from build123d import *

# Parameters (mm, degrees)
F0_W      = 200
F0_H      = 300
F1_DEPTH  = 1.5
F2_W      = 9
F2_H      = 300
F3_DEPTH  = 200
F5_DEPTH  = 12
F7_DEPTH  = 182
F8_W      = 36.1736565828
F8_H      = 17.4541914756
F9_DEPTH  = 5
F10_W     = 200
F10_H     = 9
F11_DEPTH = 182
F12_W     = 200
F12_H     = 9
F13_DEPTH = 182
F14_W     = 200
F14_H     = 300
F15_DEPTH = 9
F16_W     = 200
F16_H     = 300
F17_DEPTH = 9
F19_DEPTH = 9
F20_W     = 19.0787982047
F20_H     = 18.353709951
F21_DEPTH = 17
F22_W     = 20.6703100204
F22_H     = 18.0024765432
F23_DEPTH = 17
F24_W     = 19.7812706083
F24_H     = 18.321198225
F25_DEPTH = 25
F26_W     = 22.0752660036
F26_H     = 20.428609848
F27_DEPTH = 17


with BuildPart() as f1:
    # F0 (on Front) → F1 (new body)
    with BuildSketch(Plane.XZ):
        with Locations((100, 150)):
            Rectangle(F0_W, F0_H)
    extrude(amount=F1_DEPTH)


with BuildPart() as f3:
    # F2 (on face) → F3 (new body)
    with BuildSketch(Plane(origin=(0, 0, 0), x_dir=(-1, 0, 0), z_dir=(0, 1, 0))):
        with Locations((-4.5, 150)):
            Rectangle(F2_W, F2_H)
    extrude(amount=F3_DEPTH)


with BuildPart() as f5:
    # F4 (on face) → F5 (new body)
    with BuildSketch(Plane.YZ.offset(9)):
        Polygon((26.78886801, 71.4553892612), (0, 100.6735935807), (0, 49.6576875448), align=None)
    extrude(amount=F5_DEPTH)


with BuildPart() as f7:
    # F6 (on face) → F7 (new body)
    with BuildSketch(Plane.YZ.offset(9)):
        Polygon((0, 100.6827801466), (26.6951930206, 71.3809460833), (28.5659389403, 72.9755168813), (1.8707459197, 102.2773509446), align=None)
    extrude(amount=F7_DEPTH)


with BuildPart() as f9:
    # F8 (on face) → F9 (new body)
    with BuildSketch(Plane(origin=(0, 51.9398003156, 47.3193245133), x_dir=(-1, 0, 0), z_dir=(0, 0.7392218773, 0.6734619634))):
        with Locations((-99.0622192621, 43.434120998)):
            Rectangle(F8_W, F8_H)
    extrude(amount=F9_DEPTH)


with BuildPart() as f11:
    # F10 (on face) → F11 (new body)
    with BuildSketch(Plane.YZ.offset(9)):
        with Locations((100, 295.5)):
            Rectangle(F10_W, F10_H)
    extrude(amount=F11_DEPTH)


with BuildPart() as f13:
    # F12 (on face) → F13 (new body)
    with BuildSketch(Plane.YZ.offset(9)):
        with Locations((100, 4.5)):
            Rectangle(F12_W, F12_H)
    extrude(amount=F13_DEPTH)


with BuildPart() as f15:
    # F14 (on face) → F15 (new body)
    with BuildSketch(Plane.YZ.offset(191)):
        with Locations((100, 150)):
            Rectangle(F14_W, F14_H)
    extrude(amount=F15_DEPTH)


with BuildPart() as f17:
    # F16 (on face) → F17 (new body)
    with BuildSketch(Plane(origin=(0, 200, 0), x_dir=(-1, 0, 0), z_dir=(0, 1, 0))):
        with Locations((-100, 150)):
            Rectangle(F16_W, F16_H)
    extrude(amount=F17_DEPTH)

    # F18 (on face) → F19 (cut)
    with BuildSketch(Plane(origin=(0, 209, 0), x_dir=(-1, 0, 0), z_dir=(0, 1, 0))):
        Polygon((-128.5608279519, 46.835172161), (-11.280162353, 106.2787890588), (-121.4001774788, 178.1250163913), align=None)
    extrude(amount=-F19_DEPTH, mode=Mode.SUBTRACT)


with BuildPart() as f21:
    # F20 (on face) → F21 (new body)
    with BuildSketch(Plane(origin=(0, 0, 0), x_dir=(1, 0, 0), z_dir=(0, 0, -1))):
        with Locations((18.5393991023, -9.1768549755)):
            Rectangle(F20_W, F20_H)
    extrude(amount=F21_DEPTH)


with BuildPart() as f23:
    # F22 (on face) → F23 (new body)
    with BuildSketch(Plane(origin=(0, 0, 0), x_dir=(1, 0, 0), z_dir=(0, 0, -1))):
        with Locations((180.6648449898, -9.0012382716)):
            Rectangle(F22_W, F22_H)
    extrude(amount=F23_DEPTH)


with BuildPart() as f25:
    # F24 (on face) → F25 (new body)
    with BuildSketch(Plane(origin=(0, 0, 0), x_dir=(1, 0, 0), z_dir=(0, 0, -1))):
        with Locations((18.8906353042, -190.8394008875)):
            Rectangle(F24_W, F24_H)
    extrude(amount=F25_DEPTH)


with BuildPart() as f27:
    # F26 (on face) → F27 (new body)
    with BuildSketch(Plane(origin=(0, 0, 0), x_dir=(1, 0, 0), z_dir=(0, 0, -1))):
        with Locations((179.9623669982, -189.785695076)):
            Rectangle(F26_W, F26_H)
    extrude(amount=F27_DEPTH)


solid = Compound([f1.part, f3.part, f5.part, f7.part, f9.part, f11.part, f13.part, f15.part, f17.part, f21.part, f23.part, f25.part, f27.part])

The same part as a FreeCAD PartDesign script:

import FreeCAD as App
import Part
import Sketcher
from FreeCAD import Vector
Q = App.Units.Quantity

doc = App.newDocument("Part")
body = doc.addObject("PartDesign::Body", "Body")

sketch1 = body.newObject("Sketcher::SketchObject", "Sketch")
sketch1.AttachmentSupport = (doc.getObject("XZ_Plane"), [""])
sketch1.MapMode = "FlatFace"
sketch1.addGeometry(Part.LineSegment(Vector(0, 300, 0), Vector(0, 0, 0)), False)
sketch1.addGeometry(Part.LineSegment(Vector(0, 0, 0), Vector(200, 0, 0)), False)
sketch1.addGeometry(Part.LineSegment(Vector(200, 0, 0), Vector(200, 300, 0)), False)
sketch1.addGeometry(Part.LineSegment(Vector(200, 300, 0), Vector(0, 300, 0)), False)
sketch1.addConstraint(Sketcher.Constraint("Coincident", 0, 2, 1, 1))
sketch1.addConstraint(Sketcher.Constraint("Coincident", 1, 2, 2, 1))
sketch1.addConstraint(Sketcher.Constraint("Coincident", 2, 2, 3, 1))
sketch1.addConstraint(Sketcher.Constraint("Coincident", 3, 2, 0, 1))
sketch1.addConstraint(Sketcher.Constraint("Vertical", 0))
sketch1.addConstraint(Sketcher.Constraint("Horizontal", 1))
sketch1.addConstraint(Sketcher.Constraint("Vertical", 2))
sketch1.addConstraint(Sketcher.Constraint("Horizontal", 3))
sketch1.addConstraint(Sketcher.Constraint("Coincident", 0, 2, -1, 1))
sketch1.addConstraint(Sketcher.Constraint("DistanceX", 1, 1, 1, 2, Q("200 mm")))
sketch1.addConstraint(Sketcher.Constraint("DistanceY", 0, 2, 0, 1, Q("300 mm")))
pad1 = body.newObject("PartDesign::Pad", "Pad")
pad1.Profile = sketch1
pad1.Length = 1.5
body2 = doc.addObject("PartDesign::Body", "Body001")

sketch2 = body2.newObject("Sketcher::SketchObject", "Sketch001")
sketch2.AttachmentSupport = (doc.getObject("XZ_Plane001"), [""])
sketch2.MapMode = "FlatFace"
sketch2.addGeometry(Part.LineSegment(Vector(9, 300, 0), Vector(9, 0, 0)), False)
sketch2.addGeometry(Part.LineSegment(Vector(9, 0, 0), Vector(0, 0, 0)), False)
sketch2.addGeometry(Part.LineSegment(Vector(0, 0, 0), Vector(0, 300, 0)), False)
sketch2.addGeometry(Part.LineSegment(Vector(0, 300, 0), Vector(9, 300, 0)), False)
sketch2.addConstraint(Sketcher.Constraint("Coincident", 0, 2, 1, 1))
sketch2.addConstraint(Sketcher.Constraint("Coincident", 1, 2, 2, 1))
sketch2.addConstraint(Sketcher.Constraint("Coincident", 2, 2, 3, 1))
sketch2.addConstraint(Sketcher.Constraint("Coincident", 3, 2, 0, 1))
sketch2.addConstraint(Sketcher.Constraint("Vertical", 0))
sketch2.addConstraint(Sketcher.Constraint("Horizontal", 1))
sketch2.addConstraint(Sketcher.Constraint("Vertical", 2))
sketch2.addConstraint(Sketcher.Constraint("Horizontal", 3))
sketch2.addConstraint(Sketcher.Constraint("Coincident", 1, 2, -1, 1))
sketch2.addConstraint(Sketcher.Constraint("DistanceX", 1, 2, 1, 1, Q("9 mm")))
sketch2.addConstraint(Sketcher.Constraint("DistanceY", 0, 2, 0, 1, Q("300 mm")))
pad2 = body2.newObject("PartDesign::Pad", "Pad001")
pad2.Profile = sketch2
pad2.Length = 200
pad2.Reversed = True
body3 = doc.addObject("PartDesign::Body", "Body002")

sketch3 = body3.newObject("Sketcher::SketchObject", "Sketch002")
sketch3.AttachmentSupport = (doc.getObject("YZ_Plane002"), [""])
sketch3.MapMode = "FlatFace"
sketch3.AttachmentOffset = App.Placement(Vector(0, 0, 9), App.Rotation())
sketch3.addGeometry(Part.LineSegment(Vector(27, 71, 0), Vector(0, 101, 0)), False)
sketch3.addGeometry(Part.LineSegment(Vector(0, 101, 0), Vector(0, 50, 0)), False)
sketch3.addGeometry(Part.LineSegment(Vector(0, 50, 0), Vector(27, 71, 0)), False)
sketch3.addConstraint(Sketcher.Constraint("Coincident", 0, 2, 1, 1))
sketch3.addConstraint(Sketcher.Constraint("Coincident", 1, 2, 2, 1))
sketch3.addConstraint(Sketcher.Constraint("Coincident", 2, 2, 0, 1))
sketch3.addConstraint(Sketcher.Constraint("Vertical", 1))
sketch3.addConstraint(Sketcher.Constraint("PointOnObject", 0, 2, -2))
sketch3.addConstraint(Sketcher.Constraint("DistanceY", 1, 2, 2, 2, Q("21.797702 mm")))
sketch3.addConstraint(Sketcher.Constraint("Distance", 0, Q("39.640218 mm")))
sketch3.addConstraint(Sketcher.Constraint("DistanceY", 1, 2, 1, 1, Q("51.015906 mm")))
sketch3.addConstraint(Sketcher.Constraint("DistanceY", -1, 1, 2, 2, Q("71.455389 mm")))
pad3 = body3.newObject("PartDesign::Pad", "Pad002")
pad3.Profile = sketch3
pad3.Length = 12
body4 = doc.addObject("PartDesign::Body", "Body003")

sketch4 = body4.newObject("Sketcher::SketchObject", "Sketch003")
sketch4.AttachmentSupport = (doc.getObject("YZ_Plane003"), [""])
sketch4.MapMode = "FlatFace"
sketch4.AttachmentOffset = App.Placement(Vector(0, 0, 9), App.Rotation())
sketch4.addGeometry(Part.LineSegment(Vector(0, 100.7, 0), Vector(26.7, 71.4, 0)), False)
sketch4.addGeometry(Part.LineSegment(Vector(26.7, 71.4, 0), Vector(28.6, 73, 0)), False)
sketch4.addGeometry(Part.LineSegment(Vector(28.6, 73, 0), Vector(1.9, 102.3, 0)), False)
sketch4.addGeometry(Part.LineSegment(Vector(1.9, 102.3, 0), Vector(0, 100.7, 0)), False)
sketch4.addConstraint(Sketcher.Constraint("Coincident", 0, 2, 1, 1))
sketch4.addConstraint(Sketcher.Constraint("Coincident", 1, 2, 2, 1))
sketch4.addConstraint(Sketcher.Constraint("Coincident", 2, 2, 3, 1))
sketch4.addConstraint(Sketcher.Constraint("Coincident", 3, 2, 0, 1))
sketch4.addConstraint(Sketcher.Constraint("PointOnObject", 3, 2, -2))
sketch4.addConstraint(Sketcher.Constraint("Parallel", 0, 2))
sketch4.addConstraint(Sketcher.Constraint("Parallel", 1, 3))
sketch4.addConstraint(Sketcher.Constraint("Distance", 1, Q("2.458118 mm")))
sketch4.addConstraint(Sketcher.Constraint("DistanceX", -1, 1, 1, 2, Q("28.565939 mm")))
sketch4.addConstraint(Sketcher.Constraint("DistanceY", -1, 1, 2, 2, Q("102.277351 mm")))
sketch4.addConstraint(Sketcher.Constraint("DistanceY", -1, 1, 3, 2, Q("100.68278 mm")))
sketch4.addConstraint(Sketcher.Constraint("Distance", 0, Q("39.638754 mm")))
pad4 = body4.newObject("PartDesign::Pad", "Pad003")
pad4.Profile = sketch4
pad4.Length = 182
body5 = doc.addObject("PartDesign::Body", "Body004")

sketch5 = body5.newObject("Sketcher::SketchObject", "Sketch004")
sketch5.Placement = App.Placement(Vector(0, 51.9398, 47.319325), App.Rotation(Vector(-1, 0, 0), Vector(0, -0.673461963, 0.739221877), Vector(0, 0.739221877, 0.673461963), "ZXY"))
sketch5.addGeometry(Part.LineSegment(Vector(-117, 52, 0), Vector(-117, 35, 0)), False)
sketch5.addGeometry(Part.LineSegment(Vector(-117, 35, 0), Vector(-81, 35, 0)), False)
sketch5.addGeometry(Part.LineSegment(Vector(-81, 35, 0), Vector(-81, 52, 0)), False)
sketch5.addGeometry(Part.LineSegment(Vector(-81, 52, 0), Vector(-117, 52, 0)), False)
sketch5.addConstraint(Sketcher.Constraint("Coincident", 0, 2, 1, 1))
sketch5.addConstraint(Sketcher.Constraint("Coincident", 1, 2, 2, 1))
sketch5.addConstraint(Sketcher.Constraint("Coincident", 2, 2, 3, 1))
sketch5.addConstraint(Sketcher.Constraint("Coincident", 3, 2, 0, 1))
sketch5.addConstraint(Sketcher.Constraint("Vertical", 0))
sketch5.addConstraint(Sketcher.Constraint("Horizontal", 1))
sketch5.addConstraint(Sketcher.Constraint("Vertical", 2))
sketch5.addConstraint(Sketcher.Constraint("Horizontal", 3))
sketch5.addConstraint(Sketcher.Constraint("DistanceY", 0, 2, 0, 1, Q("17.454191 mm")))
sketch5.addConstraint(Sketcher.Constraint("DistanceX", 1, 1, 1, 2, Q("36.173657 mm")))
sketch5.addConstraint(Sketcher.Constraint("DistanceX", 1, 2, -1, 1, Q("80.975391 mm")))
sketch5.addConstraint(Sketcher.Constraint("DistanceY", -1, 1, 0, 2, Q("34.707025 mm")))
pad5 = body5.newObject("PartDesign::Pad", "Pad004")
pad5.Profile = sketch5
pad5.Length = 5
body6 = doc.addObject("PartDesign::Body", "Body005")

sketch6 = body6.newObject("Sketcher::SketchObject", "Sketch005")
sketch6.AttachmentSupport = (doc.getObject("YZ_Plane005"), [""])
sketch6.MapMode = "FlatFace"
sketch6.AttachmentOffset = App.Placement(Vector(0, 0, 9), App.Rotation())
sketch6.addGeometry(Part.LineSegment(Vector(0, 300, 0), Vector(0, 291, 0)), False)
sketch6.addGeometry(Part.LineSegment(Vector(0, 291, 0), Vector(200, 291, 0)), False)
sketch6.addGeometry(Part.LineSegment(Vector(200, 291, 0), Vector(200, 300, 0)), False)
sketch6.addGeometry(Part.LineSegment(Vector(200, 300, 0), Vector(0, 300, 0)), False)
sketch6.addConstraint(Sketcher.Constraint("Coincident", 0, 2, 1, 1))
sketch6.addConstraint(Sketcher.Constraint("Coincident", 1, 2, 2, 1))
sketch6.addConstraint(Sketcher.Constraint("Coincident", 2, 2, 3, 1))
sketch6.addConstraint(Sketcher.Constraint("Coincident", 3, 2, 0, 1))
sketch6.addConstraint(Sketcher.Constraint("Vertical", 0))
sketch6.addConstraint(Sketcher.Constraint("Horizontal", 1))
sketch6.addConstraint(Sketcher.Constraint("Vertical", 2))
sketch6.addConstraint(Sketcher.Constraint("Horizontal", 3))
sketch6.addConstraint(Sketcher.Constraint("PointOnObject", 0, 2, -2))
sketch6.addConstraint(Sketcher.Constraint("DistanceX", 1, 1, 1, 2, Q("200 mm")))
sketch6.addConstraint(Sketcher.Constraint("DistanceY", 0, 2, 0, 1, Q("9 mm")))
sketch6.addConstraint(Sketcher.Constraint("DistanceY", -1, 1, 0, 2, Q("291 mm")))
pad6 = body6.newObject("PartDesign::Pad", "Pad005")
pad6.Profile = sketch6
pad6.Length = 182
body7 = doc.addObject("PartDesign::Body", "Body006")

sketch7 = body7.newObject("Sketcher::SketchObject", "Sketch006")
sketch7.AttachmentSupport = (doc.getObject("YZ_Plane006"), [""])
sketch7.MapMode = "FlatFace"
sketch7.AttachmentOffset = App.Placement(Vector(0, 0, 9), App.Rotation())
sketch7.addGeometry(Part.LineSegment(Vector(0, 9, 0), Vector(0, 0, 0)), False)
sketch7.addGeometry(Part.LineSegment(Vector(0, 0, 0), Vector(200, 0, 0)), False)
sketch7.addGeometry(Part.LineSegment(Vector(200, 0, 0), Vector(200, 9, 0)), False)
sketch7.addGeometry(Part.LineSegment(Vector(200, 9, 0), Vector(0, 9, 0)), False)
sketch7.addConstraint(Sketcher.Constraint("Coincident", 0, 2, 1, 1))
sketch7.addConstraint(Sketcher.Constraint("Coincident", 1, 2, 2, 1))
sketch7.addConstraint(Sketcher.Constraint("Coincident", 2, 2, 3, 1))
sketch7.addConstraint(Sketcher.Constraint("Coincident", 3, 2, 0, 1))
sketch7.addConstraint(Sketcher.Constraint("Vertical", 0))
sketch7.addConstraint(Sketcher.Constraint("Horizontal", 1))
sketch7.addConstraint(Sketcher.Constraint("Vertical", 2))
sketch7.addConstraint(Sketcher.Constraint("Horizontal", 3))
sketch7.addConstraint(Sketcher.Constraint("Coincident", 0, 2, -1, 1))
sketch7.addConstraint(Sketcher.Constraint("DistanceX", 1, 1, 1, 2, Q("200 mm")))
sketch7.addConstraint(Sketcher.Constraint("DistanceY", 0, 2, 0, 1, Q("9 mm")))
pad7 = body7.newObject("PartDesign::Pad", "Pad006")
pad7.Profile = sketch7
pad7.Length = 182
body8 = doc.addObject("PartDesign::Body", "Body007")

sketch8 = body8.newObject("Sketcher::SketchObject", "Sketch007")
sketch8.AttachmentSupport = (doc.getObject("YZ_Plane007"), [""])
sketch8.MapMode = "FlatFace"
sketch8.AttachmentOffset = App.Placement(Vector(0, 0, 191), App.Rotation())
sketch8.addGeometry(Part.LineSegment(Vector(0, 300, 0), Vector(0, 0, 0)), False)
sketch8.addGeometry(Part.LineSegment(Vector(0, 0, 0), Vector(200, 0, 0)), False)
sketch8.addGeometry(Part.LineSegment(Vector(200, 0, 0), Vector(200, 300, 0)), False)
sketch8.addGeometry(Part.LineSegment(Vector(200, 300, 0), Vector(0, 300, 0)), False)
sketch8.addConstraint(Sketcher.Constraint("Coincident", 0, 2, 1, 1))
sketch8.addConstraint(Sketcher.Constraint("Coincident", 1, 2, 2, 1))
sketch8.addConstraint(Sketcher.Constraint("Coincident", 2, 2, 3, 1))
sketch8.addConstraint(Sketcher.Constraint("Coincident", 3, 2, 0, 1))
sketch8.addConstraint(Sketcher.Constraint("Vertical", 0))
sketch8.addConstraint(Sketcher.Constraint("Horizontal", 1))
sketch8.addConstraint(Sketcher.Constraint("Vertical", 2))
sketch8.addConstraint(Sketcher.Constraint("Horizontal", 3))
sketch8.addConstraint(Sketcher.Constraint("Coincident", 0, 2, -1, 1))
sketch8.addConstraint(Sketcher.Constraint("DistanceX", 1, 1, 1, 2, Q("200 mm")))
sketch8.addConstraint(Sketcher.Constraint("DistanceY", 0, 2, 0, 1, Q("300 mm")))
pad8 = body8.newObject("PartDesign::Pad", "Pad007")
pad8.Profile = sketch8
pad8.Length = 9
body9 = doc.addObject("PartDesign::Body", "Body008")

sketch9 = body9.newObject("Sketcher::SketchObject", "Sketch008")
sketch9.AttachmentSupport = (doc.getObject("XZ_Plane008"), [""])
sketch9.MapMode = "FlatFace"
sketch9.AttachmentOffset = App.Placement(Vector(0, 0, -200), App.Rotation())
sketch9.addGeometry(Part.LineSegment(Vector(200, 300, 0), Vector(200, 0, 0)), False)
sketch9.addGeometry(Part.LineSegment(Vector(200, 0, 0), Vector(0, 0, 0)), False)
sketch9.addGeometry(Part.LineSegment(Vector(0, 0, 0), Vector(0, 300, 0)), False)
sketch9.addGeometry(Part.LineSegment(Vector(0, 300, 0), Vector(200, 300, 0)), False)
sketch9.addConstraint(Sketcher.Constraint("Coincident", 0, 2, 1, 1))
sketch9.addConstraint(Sketcher.Constraint("Coincident", 1, 2, 2, 1))
sketch9.addConstraint(Sketcher.Constraint("Coincident", 2, 2, 3, 1))
sketch9.addConstraint(Sketcher.Constraint("Coincident", 3, 2, 0, 1))
sketch9.addConstraint(Sketcher.Constraint("Vertical", 0))
sketch9.addConstraint(Sketcher.Constraint("Horizontal", 1))
sketch9.addConstraint(Sketcher.Constraint("Vertical", 2))
sketch9.addConstraint(Sketcher.Constraint("Horizontal", 3))
sketch9.addConstraint(Sketcher.Constraint("Coincident", 1, 2, -1, 1))
sketch9.addConstraint(Sketcher.Constraint("DistanceX", 1, 2, 1, 1, Q("200 mm")))
sketch9.addConstraint(Sketcher.Constraint("DistanceY", 0, 2, 0, 1, Q("300 mm")))
pad9 = body9.newObject("PartDesign::Pad", "Pad008")
pad9.Profile = sketch9
pad9.Length = 9
pad9.Reversed = True

sketch10 = body9.newObject("Sketcher::SketchObject", "Sketch009")
sketch10.AttachmentSupport = (doc.getObject("XZ_Plane008"), [""])
sketch10.MapMode = "FlatFace"
sketch10.AttachmentOffset = App.Placement(Vector(0, 0, -209), App.Rotation())
sketch10.addGeometry(Part.LineSegment(Vector(129, 47, 0), Vector(11, 106, 0)), False)
sketch10.addGeometry(Part.LineSegment(Vector(11, 106, 0), Vector(121, 178, 0)), False)
sketch10.addGeometry(Part.LineSegment(Vector(121, 178, 0), Vector(129, 47, 0)), False)
sketch10.addConstraint(Sketcher.Constraint("Coincident", 0, 2, 1, 1))
sketch10.addConstraint(Sketcher.Constraint("Coincident", 1, 2, 2, 1))
sketch10.addConstraint(Sketcher.Constraint("Coincident", 2, 2, 0, 1))
sketch10.addConstraint(Sketcher.Constraint("Equal", 0, 1))
sketch10.addConstraint(Sketcher.Constraint("Equal", 1, 2))
sketch10.addConstraint(Sketcher.Constraint("DistanceY", -1, 1, 0, 2, Q("106.278789 mm")))
sketch10.addConstraint(Sketcher.Constraint("DistanceX", 1, 2, 2, 2, Q("7.16065 mm")))
sketch10.addConstraint(Sketcher.Constraint("Distance", 0, Q("131.484973 mm")))
sketch10.addConstraint(Sketcher.Constraint("DistanceX", -1, 1, 0, 2, Q("11.280162 mm")))
pocket1 = body9.newObject("PartDesign::Pocket", "Pocket")
pocket1.Profile = sketch10
pocket1.Length = 9
pocket1.Reversed = True
body10 = doc.addObject("PartDesign::Body", "Body009")

sketch11 = body10.newObject("Sketcher::SketchObject", "Sketch010")
sketch11.AttachmentSupport = (doc.getObject("XY_Plane009"), [""])
sketch11.MapMode = "FlatFace"
sketch11.addGeometry(Part.LineSegment(Vector(9, 0, 0), Vector(9, 18, 0)), False)
sketch11.addGeometry(Part.LineSegment(Vector(9, 18, 0), Vector(28, 18, 0)), False)
sketch11.addGeometry(Part.LineSegment(Vector(28, 18, 0), Vector(28, 0, 0)), False)
sketch11.addGeometry(Part.LineSegment(Vector(28, 0, 0), Vector(9, 0, 0)), False)
sketch11.addConstraint(Sketcher.Constraint("Coincident", 0, 2, 1, 1))
sketch11.addConstraint(Sketcher.Constraint("Coincident", 1, 2, 2, 1))
sketch11.addConstraint(Sketcher.Constraint("Coincident", 2, 2, 3, 1))
sketch11.addConstraint(Sketcher.Constraint("Coincident", 3, 2, 0, 1))
sketch11.addConstraint(Sketcher.Constraint("Vertical", 0))
sketch11.addConstraint(Sketcher.Constraint("Horizontal", 1))
sketch11.addConstraint(Sketcher.Constraint("Vertical", 2))
sketch11.addConstraint(Sketcher.Constraint("Horizontal", 3))
sketch11.addConstraint(Sketcher.Constraint("PointOnObject", 2, 2, -1))
sketch11.addConstraint(Sketcher.Constraint("DistanceX", -1, 1, 0, 2, Q("9 mm")))
sketch11.addConstraint(Sketcher.Constraint("DistanceX", 1, 1, 1, 2, Q("19.078798 mm")))
sketch11.addConstraint(Sketcher.Constraint("DistanceY", 0, 1, 0, 2, Q("18.35371 mm")))
pad10 = body10.newObject("PartDesign::Pad", "Pad009")
pad10.Profile = sketch11
pad10.Length = 17
pad10.Reversed = True
body11 = doc.addObject("PartDesign::Body", "Body010")

sketch12 = body11.newObject("Sketcher::SketchObject", "Sketch011")
sketch12.AttachmentSupport = (doc.getObject("XY_Plane010"), [""])
sketch12.MapMode = "FlatFace"
sketch12.addGeometry(Part.LineSegment(Vector(170, 0, 0), Vector(170, 18, 0)), False)
sketch12.addGeometry(Part.LineSegment(Vector(170, 18, 0), Vector(191, 18, 0)), False)
sketch12.addGeometry(Part.LineSegment(Vector(191, 18, 0), Vector(191, 0, 0)), False)
sketch12.addGeometry(Part.LineSegment(Vector(191, 0, 0), Vector(170, 0, 0)), False)
sketch12.addConstraint(Sketcher.Constraint("Coincident", 0, 2, 1, 1))
sketch12.addConstraint(Sketcher.Constraint("Coincident", 1, 2, 2, 1))
sketch12.addConstraint(Sketcher.Constraint("Coincident", 2, 2, 3, 1))
sketch12.addConstraint(Sketcher.Constraint("Coincident", 3, 2, 0, 1))
sketch12.addConstraint(Sketcher.Constraint("Vertical", 0))
sketch12.addConstraint(Sketcher.Constraint("Horizontal", 1))
sketch12.addConstraint(Sketcher.Constraint("Vertical", 2))
sketch12.addConstraint(Sketcher.Constraint("Horizontal", 3))
sketch12.addConstraint(Sketcher.Constraint("PointOnObject", 2, 2, -1))
sketch12.addConstraint(Sketcher.Constraint("DistanceX", -1, 1, 1, 2, Q("191 mm")))
sketch12.addConstraint(Sketcher.Constraint("DistanceX", 1, 1, 1, 2, Q("20.67031 mm")))
sketch12.addConstraint(Sketcher.Constraint("DistanceY", 0, 1, 0, 2, Q("18.002477 mm")))
pad11 = body11.newObject("PartDesign::Pad", "Pad010")
pad11.Profile = sketch12
pad11.Length = 17
pad11.Reversed = True
body12 = doc.addObject("PartDesign::Body", "Body011")

sketch13 = body12.newObject("Sketcher::SketchObject", "Sketch012")
sketch13.AttachmentSupport = (doc.getObject("XY_Plane011"), [""])
sketch13.MapMode = "FlatFace"
sketch13.addGeometry(Part.LineSegment(Vector(9, 182, 0), Vector(9, 200, 0)), False)
sketch13.addGeometry(Part.LineSegment(Vector(9, 200, 0), Vector(29, 200, 0)), False)
sketch13.addGeometry(Part.LineSegment(Vector(29, 200, 0), Vector(29, 182, 0)), False)
sketch13.addGeometry(Part.LineSegment(Vector(29, 182, 0), Vector(9, 182, 0)), False)
sketch13.addConstraint(Sketcher.Constraint("Coincident", 0, 2, 1, 1))
sketch13.addConstraint(Sketcher.Constraint("Coincident", 1, 2, 2, 1))
sketch13.addConstraint(Sketcher.Constraint("Coincident", 2, 2, 3, 1))
sketch13.addConstraint(Sketcher.Constraint("Coincident", 3, 2, 0, 1))
sketch13.addConstraint(Sketcher.Constraint("Vertical", 0))
sketch13.addConstraint(Sketcher.Constraint("Horizontal", 1))
sketch13.addConstraint(Sketcher.Constraint("Vertical", 2))
sketch13.addConstraint(Sketcher.Constraint("Horizontal", 3))
sketch13.addConstraint(Sketcher.Constraint("DistanceX", -1, 1, 0, 2, Q("9 mm")))
sketch13.addConstraint(Sketcher.Constraint("DistanceY", -1, 1, 0, 2, Q("200 mm")))
sketch13.addConstraint(Sketcher.Constraint("DistanceY", 0, 1, 0, 2, Q("18.321198 mm")))
sketch13.addConstraint(Sketcher.Constraint("DistanceX", 1, 1, 1, 2, Q("19.781271 mm")))
pad12 = body12.newObject("PartDesign::Pad", "Pad011")
pad12.Profile = sketch13
pad12.Length = 25
pad12.Reversed = True
body13 = doc.addObject("PartDesign::Body", "Body012")

sketch14 = body13.newObject("Sketcher::SketchObject", "Sketch013")
sketch14.AttachmentSupport = (doc.getObject("XY_Plane012"), [""])
sketch14.MapMode = "FlatFace"
sketch14.addGeometry(Part.LineSegment(Vector(169, 180, 0), Vector(169, 200, 0)), False)
sketch14.addGeometry(Part.LineSegment(Vector(169, 200, 0), Vector(191, 200, 0)), False)
sketch14.addGeometry(Part.LineSegment(Vector(191, 200, 0), Vector(191, 180, 0)), False)
sketch14.addGeometry(Part.LineSegment(Vector(191, 180, 0), Vector(169, 180, 0)), False)
sketch14.addConstraint(Sketcher.Constraint("Coincident", 0, 2, 1, 1))
sketch14.addConstraint(Sketcher.Constraint("Coincident", 1, 2, 2, 1))
sketch14.addConstraint(Sketcher.Constraint("Coincident", 2, 2, 3, 1))
sketch14.addConstraint(Sketcher.Constraint("Coincident", 3, 2, 0, 1))
sketch14.addConstraint(Sketcher.Constraint("Vertical", 0))
sketch14.addConstraint(Sketcher.Constraint("Horizontal", 1))
sketch14.addConstraint(Sketcher.Constraint("Vertical", 2))
sketch14.addConstraint(Sketcher.Constraint("Horizontal", 3))
sketch14.addConstraint(Sketcher.Constraint("DistanceY", -1, 1, 0, 2, Q("200 mm")))
sketch14.addConstraint(Sketcher.Constraint("DistanceX", -1, 1, 1, 2, Q("191 mm")))
sketch14.addConstraint(Sketcher.Constraint("DistanceY", 0, 1, 0, 2, Q("20.42861 mm")))
sketch14.addConstraint(Sketcher.Constraint("DistanceX", 1, 1, 1, 2, Q("22.075266 mm")))
pad13 = body13.newObject("PartDesign::Pad", "Pad012")
pad13.Profile = sketch14
pad13.Length = 17
pad13.Reversed = True

doc.recompute()
